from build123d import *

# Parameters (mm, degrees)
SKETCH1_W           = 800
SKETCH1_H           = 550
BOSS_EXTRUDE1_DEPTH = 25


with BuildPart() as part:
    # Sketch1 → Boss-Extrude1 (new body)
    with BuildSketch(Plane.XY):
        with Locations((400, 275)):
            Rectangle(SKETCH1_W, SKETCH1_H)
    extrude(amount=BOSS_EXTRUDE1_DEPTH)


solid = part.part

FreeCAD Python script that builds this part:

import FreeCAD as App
import Part
import Sketcher
from FreeCAD import Vector


def add_polygon(sketch, points):
    """Adds a closed chain of lines whose ends are joined by coincident constraints."""
    first, n = sketch.GeometryCount, len(points)
    for a, b in zip(points, points[1:] + points[:1]):
        sketch.addGeometry(Part.LineSegment(App.Vector(*a, 0), App.Vector(*b, 0)), False)
    for i in range(n):
        sketch.addConstraint(Sketcher.Constraint("Coincident", first + i, 2, first + (i + 1) % n, 1))

doc = App.newDocument("Part")
body = doc.addObject("PartDesign::Body", "Body")

sketch1 = body.newObject("Sketcher::SketchObject", "Sketch")
sketch1.AttachmentSupport = (doc.getObject("XY_Plane"), [""])
sketch1.MapMode = "FlatFace"
add_polygon(sketch1, [(0, 550), (0, 0), (800, 0), (800, 550)])
sketch1.addConstraint(Sketcher.Constraint("Vertical", 0))
sketch1.addConstraint(Sketcher.Constraint("Horizontal", 1))
sketch1.addConstraint(Sketcher.Constraint("Vertical", 2))
sketch1.addConstraint(Sketcher.Constraint("Horizontal", 3))
sketch1.addConstraint(Sketcher.Constraint("Coincident", 0, 2, -1, 1))
sketch1.addConstraint(Sketcher.Constraint("DistanceX", 1, 1, 1, 2, 800.0))
sketch1.addConstraint(Sketcher.Constraint("DistanceY", 0, 2, 0, 1, 550.0))
pad1 = body.newObject("PartDesign::Pad", "Pad")
pad1.Profile = sketch1
pad1.Length = 25

doc.recompute()
